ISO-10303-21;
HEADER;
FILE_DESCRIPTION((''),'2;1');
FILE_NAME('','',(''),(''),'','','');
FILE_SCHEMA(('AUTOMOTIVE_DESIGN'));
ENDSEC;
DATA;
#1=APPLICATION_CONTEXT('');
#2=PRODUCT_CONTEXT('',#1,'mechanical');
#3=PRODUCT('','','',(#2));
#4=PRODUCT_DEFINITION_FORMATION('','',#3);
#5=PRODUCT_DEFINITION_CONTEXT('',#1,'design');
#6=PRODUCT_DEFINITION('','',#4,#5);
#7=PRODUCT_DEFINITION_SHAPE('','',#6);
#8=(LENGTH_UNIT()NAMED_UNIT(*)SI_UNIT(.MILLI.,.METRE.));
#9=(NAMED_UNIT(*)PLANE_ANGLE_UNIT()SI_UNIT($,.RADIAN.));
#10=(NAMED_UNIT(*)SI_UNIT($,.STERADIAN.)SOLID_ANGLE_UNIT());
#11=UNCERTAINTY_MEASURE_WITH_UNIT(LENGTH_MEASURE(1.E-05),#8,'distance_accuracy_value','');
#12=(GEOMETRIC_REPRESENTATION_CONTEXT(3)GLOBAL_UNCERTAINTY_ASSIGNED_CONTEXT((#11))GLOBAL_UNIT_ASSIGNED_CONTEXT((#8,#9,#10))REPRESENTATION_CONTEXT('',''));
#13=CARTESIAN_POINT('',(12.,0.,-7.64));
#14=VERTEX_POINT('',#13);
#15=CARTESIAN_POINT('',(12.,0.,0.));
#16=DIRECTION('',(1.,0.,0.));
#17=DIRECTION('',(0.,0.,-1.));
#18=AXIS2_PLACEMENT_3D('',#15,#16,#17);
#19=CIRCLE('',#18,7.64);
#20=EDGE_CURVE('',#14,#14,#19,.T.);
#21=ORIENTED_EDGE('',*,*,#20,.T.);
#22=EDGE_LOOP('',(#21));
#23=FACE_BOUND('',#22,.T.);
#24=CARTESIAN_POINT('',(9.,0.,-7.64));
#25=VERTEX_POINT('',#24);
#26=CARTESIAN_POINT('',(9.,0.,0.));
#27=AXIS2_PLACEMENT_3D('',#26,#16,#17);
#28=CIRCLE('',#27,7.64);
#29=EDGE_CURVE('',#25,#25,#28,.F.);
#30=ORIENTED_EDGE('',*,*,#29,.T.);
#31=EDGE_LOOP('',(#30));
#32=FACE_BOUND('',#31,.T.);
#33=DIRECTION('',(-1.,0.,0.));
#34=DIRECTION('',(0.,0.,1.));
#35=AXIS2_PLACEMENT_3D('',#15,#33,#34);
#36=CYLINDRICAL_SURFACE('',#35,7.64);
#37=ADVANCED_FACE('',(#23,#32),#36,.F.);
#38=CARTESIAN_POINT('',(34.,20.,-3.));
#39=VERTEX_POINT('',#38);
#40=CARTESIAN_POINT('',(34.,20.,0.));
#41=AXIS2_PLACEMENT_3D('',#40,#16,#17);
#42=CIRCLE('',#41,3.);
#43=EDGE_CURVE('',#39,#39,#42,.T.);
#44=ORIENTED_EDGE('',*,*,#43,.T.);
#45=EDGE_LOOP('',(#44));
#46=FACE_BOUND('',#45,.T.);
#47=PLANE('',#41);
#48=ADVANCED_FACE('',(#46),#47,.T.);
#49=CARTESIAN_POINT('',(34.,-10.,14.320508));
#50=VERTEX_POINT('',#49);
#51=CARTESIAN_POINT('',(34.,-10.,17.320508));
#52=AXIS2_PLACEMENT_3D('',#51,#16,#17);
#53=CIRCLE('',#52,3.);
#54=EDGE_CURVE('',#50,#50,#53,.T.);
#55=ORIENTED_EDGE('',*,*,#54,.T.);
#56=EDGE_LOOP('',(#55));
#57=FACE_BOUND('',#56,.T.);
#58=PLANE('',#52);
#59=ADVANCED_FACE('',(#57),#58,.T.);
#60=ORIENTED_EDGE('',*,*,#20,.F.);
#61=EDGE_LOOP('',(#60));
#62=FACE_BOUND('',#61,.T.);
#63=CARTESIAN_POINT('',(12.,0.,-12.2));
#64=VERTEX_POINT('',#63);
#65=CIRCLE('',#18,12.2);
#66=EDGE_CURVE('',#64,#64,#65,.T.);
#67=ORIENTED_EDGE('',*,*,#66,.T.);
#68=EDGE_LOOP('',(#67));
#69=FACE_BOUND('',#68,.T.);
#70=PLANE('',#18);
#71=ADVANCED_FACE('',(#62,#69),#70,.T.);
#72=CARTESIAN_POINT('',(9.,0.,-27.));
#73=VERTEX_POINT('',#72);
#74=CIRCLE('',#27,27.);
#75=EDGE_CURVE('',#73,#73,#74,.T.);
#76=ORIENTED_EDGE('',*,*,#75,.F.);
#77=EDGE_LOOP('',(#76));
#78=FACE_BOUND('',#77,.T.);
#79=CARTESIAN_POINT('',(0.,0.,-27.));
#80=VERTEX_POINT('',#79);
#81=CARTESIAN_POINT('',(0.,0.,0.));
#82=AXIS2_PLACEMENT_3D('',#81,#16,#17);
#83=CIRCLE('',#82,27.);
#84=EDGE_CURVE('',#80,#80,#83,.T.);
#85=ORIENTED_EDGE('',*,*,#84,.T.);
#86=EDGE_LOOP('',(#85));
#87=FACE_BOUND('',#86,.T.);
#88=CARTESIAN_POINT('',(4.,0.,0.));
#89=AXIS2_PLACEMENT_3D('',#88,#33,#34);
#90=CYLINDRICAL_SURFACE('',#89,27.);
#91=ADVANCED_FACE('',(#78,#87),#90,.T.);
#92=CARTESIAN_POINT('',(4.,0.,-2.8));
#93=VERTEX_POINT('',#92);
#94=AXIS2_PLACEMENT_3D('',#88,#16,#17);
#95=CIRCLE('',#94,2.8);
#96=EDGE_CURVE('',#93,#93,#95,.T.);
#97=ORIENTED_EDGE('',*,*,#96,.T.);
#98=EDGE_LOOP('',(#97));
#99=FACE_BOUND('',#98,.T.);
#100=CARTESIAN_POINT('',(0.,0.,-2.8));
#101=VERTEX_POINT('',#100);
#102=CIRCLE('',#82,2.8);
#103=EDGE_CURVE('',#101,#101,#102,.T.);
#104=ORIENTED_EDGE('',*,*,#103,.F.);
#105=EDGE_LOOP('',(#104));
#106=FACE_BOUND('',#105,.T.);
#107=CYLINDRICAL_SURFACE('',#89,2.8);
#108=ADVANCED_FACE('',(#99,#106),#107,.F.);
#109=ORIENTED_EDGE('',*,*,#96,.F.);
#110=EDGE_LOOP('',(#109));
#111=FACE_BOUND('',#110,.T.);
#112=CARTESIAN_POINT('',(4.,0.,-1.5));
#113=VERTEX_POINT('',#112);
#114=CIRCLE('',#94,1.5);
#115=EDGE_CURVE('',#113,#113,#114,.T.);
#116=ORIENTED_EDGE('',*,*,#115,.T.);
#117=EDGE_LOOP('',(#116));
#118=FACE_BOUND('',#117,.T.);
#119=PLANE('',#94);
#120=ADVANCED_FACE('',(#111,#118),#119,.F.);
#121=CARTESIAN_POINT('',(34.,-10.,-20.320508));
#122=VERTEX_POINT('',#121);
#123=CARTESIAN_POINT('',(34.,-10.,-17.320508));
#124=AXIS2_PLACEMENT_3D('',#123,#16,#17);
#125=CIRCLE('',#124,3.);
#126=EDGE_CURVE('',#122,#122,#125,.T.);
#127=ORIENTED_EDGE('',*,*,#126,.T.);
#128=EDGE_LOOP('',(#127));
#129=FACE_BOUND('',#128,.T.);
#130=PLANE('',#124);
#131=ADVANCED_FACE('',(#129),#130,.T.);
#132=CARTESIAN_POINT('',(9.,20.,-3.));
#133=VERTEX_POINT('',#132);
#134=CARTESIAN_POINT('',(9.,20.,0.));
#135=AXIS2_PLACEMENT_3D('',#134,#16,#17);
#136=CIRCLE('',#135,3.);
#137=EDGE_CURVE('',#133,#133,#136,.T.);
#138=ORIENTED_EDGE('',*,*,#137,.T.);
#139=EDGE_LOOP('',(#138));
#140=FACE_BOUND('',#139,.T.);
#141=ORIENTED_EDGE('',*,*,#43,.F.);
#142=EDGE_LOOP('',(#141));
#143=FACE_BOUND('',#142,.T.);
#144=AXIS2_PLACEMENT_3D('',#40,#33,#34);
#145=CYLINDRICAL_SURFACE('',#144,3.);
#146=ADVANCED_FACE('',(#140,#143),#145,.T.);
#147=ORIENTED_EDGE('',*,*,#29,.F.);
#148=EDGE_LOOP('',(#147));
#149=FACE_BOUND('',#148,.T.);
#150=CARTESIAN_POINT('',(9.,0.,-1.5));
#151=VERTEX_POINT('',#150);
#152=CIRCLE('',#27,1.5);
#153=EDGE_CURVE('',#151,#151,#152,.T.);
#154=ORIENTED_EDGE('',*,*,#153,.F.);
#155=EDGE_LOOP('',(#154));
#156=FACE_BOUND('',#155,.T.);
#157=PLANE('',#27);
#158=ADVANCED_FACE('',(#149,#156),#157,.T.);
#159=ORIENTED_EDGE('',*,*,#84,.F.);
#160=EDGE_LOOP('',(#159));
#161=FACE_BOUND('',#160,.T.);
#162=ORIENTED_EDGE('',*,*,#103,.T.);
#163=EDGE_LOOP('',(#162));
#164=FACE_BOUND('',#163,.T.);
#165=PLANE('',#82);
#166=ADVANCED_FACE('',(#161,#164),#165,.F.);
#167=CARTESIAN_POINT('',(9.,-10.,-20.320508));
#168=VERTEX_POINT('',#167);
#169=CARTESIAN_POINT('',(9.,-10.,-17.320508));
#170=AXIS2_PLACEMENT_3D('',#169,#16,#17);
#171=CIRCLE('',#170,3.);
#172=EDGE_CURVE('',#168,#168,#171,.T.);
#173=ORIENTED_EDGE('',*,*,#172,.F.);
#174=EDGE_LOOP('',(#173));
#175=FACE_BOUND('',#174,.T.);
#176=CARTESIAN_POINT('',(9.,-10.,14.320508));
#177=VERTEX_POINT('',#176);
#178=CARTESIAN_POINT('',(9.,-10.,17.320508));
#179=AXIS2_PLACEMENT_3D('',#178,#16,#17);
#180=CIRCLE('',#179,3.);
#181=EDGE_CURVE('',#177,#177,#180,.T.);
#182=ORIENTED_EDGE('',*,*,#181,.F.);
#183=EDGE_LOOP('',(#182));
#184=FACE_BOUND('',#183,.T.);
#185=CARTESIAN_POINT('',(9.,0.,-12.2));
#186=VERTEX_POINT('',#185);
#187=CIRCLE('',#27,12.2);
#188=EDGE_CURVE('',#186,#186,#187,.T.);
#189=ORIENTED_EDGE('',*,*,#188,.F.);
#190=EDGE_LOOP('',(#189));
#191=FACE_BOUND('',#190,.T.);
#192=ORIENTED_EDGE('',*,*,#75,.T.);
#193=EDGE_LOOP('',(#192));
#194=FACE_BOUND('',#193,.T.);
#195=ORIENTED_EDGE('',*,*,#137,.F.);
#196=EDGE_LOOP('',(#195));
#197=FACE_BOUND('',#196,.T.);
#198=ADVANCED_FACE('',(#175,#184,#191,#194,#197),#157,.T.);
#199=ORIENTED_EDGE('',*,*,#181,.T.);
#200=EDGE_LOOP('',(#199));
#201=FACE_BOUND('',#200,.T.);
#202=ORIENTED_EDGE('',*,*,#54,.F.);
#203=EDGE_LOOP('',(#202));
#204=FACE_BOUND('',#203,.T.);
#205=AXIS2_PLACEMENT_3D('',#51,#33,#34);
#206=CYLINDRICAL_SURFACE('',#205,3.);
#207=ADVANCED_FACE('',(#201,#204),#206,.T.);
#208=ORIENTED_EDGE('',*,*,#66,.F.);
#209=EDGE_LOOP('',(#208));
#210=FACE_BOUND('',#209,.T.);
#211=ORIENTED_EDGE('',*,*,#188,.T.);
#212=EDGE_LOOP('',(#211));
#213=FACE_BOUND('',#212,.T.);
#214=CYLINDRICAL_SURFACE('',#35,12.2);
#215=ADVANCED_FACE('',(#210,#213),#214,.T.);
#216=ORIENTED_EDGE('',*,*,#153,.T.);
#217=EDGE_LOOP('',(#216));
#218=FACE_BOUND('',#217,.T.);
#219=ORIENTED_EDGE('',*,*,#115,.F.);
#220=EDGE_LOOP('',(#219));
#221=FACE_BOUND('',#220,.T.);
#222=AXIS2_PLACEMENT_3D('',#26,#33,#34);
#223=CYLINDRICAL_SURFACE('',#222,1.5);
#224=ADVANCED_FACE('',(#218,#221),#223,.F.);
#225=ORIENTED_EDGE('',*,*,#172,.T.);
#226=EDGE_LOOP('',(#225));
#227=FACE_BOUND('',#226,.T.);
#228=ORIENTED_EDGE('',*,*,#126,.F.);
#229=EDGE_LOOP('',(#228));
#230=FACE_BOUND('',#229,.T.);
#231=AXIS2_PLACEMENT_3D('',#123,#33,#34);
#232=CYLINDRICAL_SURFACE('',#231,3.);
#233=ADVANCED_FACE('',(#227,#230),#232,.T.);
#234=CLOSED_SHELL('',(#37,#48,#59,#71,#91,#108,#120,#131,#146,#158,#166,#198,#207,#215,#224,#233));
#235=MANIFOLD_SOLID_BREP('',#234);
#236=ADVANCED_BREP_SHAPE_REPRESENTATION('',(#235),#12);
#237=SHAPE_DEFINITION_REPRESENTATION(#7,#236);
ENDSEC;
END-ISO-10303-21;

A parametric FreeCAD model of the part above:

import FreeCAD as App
import Part
import Sketcher
from FreeCAD import Vector
Q = App.Units.Quantity

doc = App.newDocument("Part")
body = doc.addObject("PartDesign::Body", "Body")

sketch1 = body.newObject("Sketcher::SketchObject", "Sketch")
sketch1.AttachmentSupport = (doc.getObject("YZ_Plane"), [""])
sketch1.MapMode = "FlatFace"
sketch1.addGeometry([
    Part.Circle(Vector(0, 0, 0), Vector(0, 0, 1), 27),
    Part.Circle(Vector(0, 0, 0), Vector(0, 0, 1), 2.8),
], False)
sketch1.addConstraint([
    Sketcher.Constraint("Coincident", 0, 3, -1, 1),
    Sketcher.Constraint("Coincident", 1, 3, -1, 1),
    Sketcher.Constraint("Diameter", 0, Q("54 mm")),
    Sketcher.Constraint("Diameter", 1, Q("5.6 mm")),
])
pad1 = body.newObject("PartDesign::Pad", "Pad")
pad1.Profile = sketch1
pad1.Length = 4

sketch2 = body.newObject("Sketcher::SketchObject", "Sketch001")
sketch2.AttachmentSupport = (doc.getObject("YZ_Plane"), [""])
sketch2.MapMode = "FlatFace"
sketch2.AttachmentOffset = App.Placement(Vector(0, 0, 4), App.Rotation())
sketch2.addGeometry([
    Part.Circle(Vector(0, 0, 0), Vector(0, 0, 1), 27),
    Part.Circle(Vector(0, 0, 0), Vector(0, 0, 1), 1.5),
], False)
sketch2.addConstraint([
    Sketcher.Constraint("Coincident", 0, 3, -1, 1),
    Sketcher.Constraint("Coincident", 1, 3, -1, 1),
    Sketcher.Constraint("Diameter", 0, Q("54 mm")),
    Sketcher.Constraint("Diameter", 1, Q("3 mm")),
])
pad2 = body.newObject("PartDesign::Pad", "Pad001")
pad2.Profile = sketch2
pad2.Length = 5

sketch3 = body.newObject("Sketcher::SketchObject", "Sketch002")
sketch3.AttachmentSupport = (doc.getObject("YZ_Plane"), [""])
sketch3.MapMode = "FlatFace"
sketch3.AttachmentOffset = App.Placement(Vector(0, 0, 9), App.Rotation())
sketch3.addGeometry([
    Part.Circle(Vector(20, 0, 0), Vector(0, 0, 1), 3),
    Part.Circle(Vector(-10, -17.320508, 0), Vector(0, 0, 1), 3),
    Part.Circle(Vector(-10, 17.320508, 0), Vector(0, 0, 1), 3),
], False)
sketch3.addConstraint([
    Sketcher.Constraint("Equal", 0, 1),
    Sketcher.Constraint("Equal", 1, 2),
    Sketcher.Constraint("Symmetric", 1, 3, 2, 3, -1),
    Sketcher.Constraint("PointOnObject", 0, 3, -1),
    Sketcher.Constraint("Diameter", 0, Q("6 mm")),
    Sketcher.Constraint("DistanceX", -1, 1, 0, 3, Q("20 mm")),
    Sketcher.Constraint("DistanceX", 1, 3, -1, 1, Q("10 mm")),
    Sketcher.Constraint("DistanceY", 1, 3, -1, 1, Q("17.320508 mm")),
])
pad3 = body.newObject("PartDesign::Pad", "Pad002")
pad3.Profile = sketch3
pad3.Length = 25

sketch4 = body.newObject("Sketcher::SketchObject", "Sketch003")
sketch4.AttachmentSupport = (doc.getObject("YZ_Plane"), [""])
sketch4.MapMode = "FlatFace"
sketch4.AttachmentOffset = App.Placement(Vector(0, 0, 9), App.Rotation())
sketch4.addGeometry([
    Part.Circle(Vector(0, 0, 0), Vector(0, 0, 1), 12.2),
    Part.Circle(Vector(0, 0, 0), Vector(0, 0, 1), 7.64),
], False)
sketch4.addConstraint([
    Sketcher.Constraint("Coincident", 0, 3, -1, 1),
    Sketcher.Constraint("Coincident", 1, 3, -1, 1),
    Sketcher.Constraint("Diameter", 0, Q("24.4 mm")),
    Sketcher.Constraint("Diameter", 1, Q("15.28 mm")),
])
pad4 = body.newObject("PartDesign::Pad", "Pad003")
pad4.Profile = sketch4
pad4.Length = 3

doc.recompute()
